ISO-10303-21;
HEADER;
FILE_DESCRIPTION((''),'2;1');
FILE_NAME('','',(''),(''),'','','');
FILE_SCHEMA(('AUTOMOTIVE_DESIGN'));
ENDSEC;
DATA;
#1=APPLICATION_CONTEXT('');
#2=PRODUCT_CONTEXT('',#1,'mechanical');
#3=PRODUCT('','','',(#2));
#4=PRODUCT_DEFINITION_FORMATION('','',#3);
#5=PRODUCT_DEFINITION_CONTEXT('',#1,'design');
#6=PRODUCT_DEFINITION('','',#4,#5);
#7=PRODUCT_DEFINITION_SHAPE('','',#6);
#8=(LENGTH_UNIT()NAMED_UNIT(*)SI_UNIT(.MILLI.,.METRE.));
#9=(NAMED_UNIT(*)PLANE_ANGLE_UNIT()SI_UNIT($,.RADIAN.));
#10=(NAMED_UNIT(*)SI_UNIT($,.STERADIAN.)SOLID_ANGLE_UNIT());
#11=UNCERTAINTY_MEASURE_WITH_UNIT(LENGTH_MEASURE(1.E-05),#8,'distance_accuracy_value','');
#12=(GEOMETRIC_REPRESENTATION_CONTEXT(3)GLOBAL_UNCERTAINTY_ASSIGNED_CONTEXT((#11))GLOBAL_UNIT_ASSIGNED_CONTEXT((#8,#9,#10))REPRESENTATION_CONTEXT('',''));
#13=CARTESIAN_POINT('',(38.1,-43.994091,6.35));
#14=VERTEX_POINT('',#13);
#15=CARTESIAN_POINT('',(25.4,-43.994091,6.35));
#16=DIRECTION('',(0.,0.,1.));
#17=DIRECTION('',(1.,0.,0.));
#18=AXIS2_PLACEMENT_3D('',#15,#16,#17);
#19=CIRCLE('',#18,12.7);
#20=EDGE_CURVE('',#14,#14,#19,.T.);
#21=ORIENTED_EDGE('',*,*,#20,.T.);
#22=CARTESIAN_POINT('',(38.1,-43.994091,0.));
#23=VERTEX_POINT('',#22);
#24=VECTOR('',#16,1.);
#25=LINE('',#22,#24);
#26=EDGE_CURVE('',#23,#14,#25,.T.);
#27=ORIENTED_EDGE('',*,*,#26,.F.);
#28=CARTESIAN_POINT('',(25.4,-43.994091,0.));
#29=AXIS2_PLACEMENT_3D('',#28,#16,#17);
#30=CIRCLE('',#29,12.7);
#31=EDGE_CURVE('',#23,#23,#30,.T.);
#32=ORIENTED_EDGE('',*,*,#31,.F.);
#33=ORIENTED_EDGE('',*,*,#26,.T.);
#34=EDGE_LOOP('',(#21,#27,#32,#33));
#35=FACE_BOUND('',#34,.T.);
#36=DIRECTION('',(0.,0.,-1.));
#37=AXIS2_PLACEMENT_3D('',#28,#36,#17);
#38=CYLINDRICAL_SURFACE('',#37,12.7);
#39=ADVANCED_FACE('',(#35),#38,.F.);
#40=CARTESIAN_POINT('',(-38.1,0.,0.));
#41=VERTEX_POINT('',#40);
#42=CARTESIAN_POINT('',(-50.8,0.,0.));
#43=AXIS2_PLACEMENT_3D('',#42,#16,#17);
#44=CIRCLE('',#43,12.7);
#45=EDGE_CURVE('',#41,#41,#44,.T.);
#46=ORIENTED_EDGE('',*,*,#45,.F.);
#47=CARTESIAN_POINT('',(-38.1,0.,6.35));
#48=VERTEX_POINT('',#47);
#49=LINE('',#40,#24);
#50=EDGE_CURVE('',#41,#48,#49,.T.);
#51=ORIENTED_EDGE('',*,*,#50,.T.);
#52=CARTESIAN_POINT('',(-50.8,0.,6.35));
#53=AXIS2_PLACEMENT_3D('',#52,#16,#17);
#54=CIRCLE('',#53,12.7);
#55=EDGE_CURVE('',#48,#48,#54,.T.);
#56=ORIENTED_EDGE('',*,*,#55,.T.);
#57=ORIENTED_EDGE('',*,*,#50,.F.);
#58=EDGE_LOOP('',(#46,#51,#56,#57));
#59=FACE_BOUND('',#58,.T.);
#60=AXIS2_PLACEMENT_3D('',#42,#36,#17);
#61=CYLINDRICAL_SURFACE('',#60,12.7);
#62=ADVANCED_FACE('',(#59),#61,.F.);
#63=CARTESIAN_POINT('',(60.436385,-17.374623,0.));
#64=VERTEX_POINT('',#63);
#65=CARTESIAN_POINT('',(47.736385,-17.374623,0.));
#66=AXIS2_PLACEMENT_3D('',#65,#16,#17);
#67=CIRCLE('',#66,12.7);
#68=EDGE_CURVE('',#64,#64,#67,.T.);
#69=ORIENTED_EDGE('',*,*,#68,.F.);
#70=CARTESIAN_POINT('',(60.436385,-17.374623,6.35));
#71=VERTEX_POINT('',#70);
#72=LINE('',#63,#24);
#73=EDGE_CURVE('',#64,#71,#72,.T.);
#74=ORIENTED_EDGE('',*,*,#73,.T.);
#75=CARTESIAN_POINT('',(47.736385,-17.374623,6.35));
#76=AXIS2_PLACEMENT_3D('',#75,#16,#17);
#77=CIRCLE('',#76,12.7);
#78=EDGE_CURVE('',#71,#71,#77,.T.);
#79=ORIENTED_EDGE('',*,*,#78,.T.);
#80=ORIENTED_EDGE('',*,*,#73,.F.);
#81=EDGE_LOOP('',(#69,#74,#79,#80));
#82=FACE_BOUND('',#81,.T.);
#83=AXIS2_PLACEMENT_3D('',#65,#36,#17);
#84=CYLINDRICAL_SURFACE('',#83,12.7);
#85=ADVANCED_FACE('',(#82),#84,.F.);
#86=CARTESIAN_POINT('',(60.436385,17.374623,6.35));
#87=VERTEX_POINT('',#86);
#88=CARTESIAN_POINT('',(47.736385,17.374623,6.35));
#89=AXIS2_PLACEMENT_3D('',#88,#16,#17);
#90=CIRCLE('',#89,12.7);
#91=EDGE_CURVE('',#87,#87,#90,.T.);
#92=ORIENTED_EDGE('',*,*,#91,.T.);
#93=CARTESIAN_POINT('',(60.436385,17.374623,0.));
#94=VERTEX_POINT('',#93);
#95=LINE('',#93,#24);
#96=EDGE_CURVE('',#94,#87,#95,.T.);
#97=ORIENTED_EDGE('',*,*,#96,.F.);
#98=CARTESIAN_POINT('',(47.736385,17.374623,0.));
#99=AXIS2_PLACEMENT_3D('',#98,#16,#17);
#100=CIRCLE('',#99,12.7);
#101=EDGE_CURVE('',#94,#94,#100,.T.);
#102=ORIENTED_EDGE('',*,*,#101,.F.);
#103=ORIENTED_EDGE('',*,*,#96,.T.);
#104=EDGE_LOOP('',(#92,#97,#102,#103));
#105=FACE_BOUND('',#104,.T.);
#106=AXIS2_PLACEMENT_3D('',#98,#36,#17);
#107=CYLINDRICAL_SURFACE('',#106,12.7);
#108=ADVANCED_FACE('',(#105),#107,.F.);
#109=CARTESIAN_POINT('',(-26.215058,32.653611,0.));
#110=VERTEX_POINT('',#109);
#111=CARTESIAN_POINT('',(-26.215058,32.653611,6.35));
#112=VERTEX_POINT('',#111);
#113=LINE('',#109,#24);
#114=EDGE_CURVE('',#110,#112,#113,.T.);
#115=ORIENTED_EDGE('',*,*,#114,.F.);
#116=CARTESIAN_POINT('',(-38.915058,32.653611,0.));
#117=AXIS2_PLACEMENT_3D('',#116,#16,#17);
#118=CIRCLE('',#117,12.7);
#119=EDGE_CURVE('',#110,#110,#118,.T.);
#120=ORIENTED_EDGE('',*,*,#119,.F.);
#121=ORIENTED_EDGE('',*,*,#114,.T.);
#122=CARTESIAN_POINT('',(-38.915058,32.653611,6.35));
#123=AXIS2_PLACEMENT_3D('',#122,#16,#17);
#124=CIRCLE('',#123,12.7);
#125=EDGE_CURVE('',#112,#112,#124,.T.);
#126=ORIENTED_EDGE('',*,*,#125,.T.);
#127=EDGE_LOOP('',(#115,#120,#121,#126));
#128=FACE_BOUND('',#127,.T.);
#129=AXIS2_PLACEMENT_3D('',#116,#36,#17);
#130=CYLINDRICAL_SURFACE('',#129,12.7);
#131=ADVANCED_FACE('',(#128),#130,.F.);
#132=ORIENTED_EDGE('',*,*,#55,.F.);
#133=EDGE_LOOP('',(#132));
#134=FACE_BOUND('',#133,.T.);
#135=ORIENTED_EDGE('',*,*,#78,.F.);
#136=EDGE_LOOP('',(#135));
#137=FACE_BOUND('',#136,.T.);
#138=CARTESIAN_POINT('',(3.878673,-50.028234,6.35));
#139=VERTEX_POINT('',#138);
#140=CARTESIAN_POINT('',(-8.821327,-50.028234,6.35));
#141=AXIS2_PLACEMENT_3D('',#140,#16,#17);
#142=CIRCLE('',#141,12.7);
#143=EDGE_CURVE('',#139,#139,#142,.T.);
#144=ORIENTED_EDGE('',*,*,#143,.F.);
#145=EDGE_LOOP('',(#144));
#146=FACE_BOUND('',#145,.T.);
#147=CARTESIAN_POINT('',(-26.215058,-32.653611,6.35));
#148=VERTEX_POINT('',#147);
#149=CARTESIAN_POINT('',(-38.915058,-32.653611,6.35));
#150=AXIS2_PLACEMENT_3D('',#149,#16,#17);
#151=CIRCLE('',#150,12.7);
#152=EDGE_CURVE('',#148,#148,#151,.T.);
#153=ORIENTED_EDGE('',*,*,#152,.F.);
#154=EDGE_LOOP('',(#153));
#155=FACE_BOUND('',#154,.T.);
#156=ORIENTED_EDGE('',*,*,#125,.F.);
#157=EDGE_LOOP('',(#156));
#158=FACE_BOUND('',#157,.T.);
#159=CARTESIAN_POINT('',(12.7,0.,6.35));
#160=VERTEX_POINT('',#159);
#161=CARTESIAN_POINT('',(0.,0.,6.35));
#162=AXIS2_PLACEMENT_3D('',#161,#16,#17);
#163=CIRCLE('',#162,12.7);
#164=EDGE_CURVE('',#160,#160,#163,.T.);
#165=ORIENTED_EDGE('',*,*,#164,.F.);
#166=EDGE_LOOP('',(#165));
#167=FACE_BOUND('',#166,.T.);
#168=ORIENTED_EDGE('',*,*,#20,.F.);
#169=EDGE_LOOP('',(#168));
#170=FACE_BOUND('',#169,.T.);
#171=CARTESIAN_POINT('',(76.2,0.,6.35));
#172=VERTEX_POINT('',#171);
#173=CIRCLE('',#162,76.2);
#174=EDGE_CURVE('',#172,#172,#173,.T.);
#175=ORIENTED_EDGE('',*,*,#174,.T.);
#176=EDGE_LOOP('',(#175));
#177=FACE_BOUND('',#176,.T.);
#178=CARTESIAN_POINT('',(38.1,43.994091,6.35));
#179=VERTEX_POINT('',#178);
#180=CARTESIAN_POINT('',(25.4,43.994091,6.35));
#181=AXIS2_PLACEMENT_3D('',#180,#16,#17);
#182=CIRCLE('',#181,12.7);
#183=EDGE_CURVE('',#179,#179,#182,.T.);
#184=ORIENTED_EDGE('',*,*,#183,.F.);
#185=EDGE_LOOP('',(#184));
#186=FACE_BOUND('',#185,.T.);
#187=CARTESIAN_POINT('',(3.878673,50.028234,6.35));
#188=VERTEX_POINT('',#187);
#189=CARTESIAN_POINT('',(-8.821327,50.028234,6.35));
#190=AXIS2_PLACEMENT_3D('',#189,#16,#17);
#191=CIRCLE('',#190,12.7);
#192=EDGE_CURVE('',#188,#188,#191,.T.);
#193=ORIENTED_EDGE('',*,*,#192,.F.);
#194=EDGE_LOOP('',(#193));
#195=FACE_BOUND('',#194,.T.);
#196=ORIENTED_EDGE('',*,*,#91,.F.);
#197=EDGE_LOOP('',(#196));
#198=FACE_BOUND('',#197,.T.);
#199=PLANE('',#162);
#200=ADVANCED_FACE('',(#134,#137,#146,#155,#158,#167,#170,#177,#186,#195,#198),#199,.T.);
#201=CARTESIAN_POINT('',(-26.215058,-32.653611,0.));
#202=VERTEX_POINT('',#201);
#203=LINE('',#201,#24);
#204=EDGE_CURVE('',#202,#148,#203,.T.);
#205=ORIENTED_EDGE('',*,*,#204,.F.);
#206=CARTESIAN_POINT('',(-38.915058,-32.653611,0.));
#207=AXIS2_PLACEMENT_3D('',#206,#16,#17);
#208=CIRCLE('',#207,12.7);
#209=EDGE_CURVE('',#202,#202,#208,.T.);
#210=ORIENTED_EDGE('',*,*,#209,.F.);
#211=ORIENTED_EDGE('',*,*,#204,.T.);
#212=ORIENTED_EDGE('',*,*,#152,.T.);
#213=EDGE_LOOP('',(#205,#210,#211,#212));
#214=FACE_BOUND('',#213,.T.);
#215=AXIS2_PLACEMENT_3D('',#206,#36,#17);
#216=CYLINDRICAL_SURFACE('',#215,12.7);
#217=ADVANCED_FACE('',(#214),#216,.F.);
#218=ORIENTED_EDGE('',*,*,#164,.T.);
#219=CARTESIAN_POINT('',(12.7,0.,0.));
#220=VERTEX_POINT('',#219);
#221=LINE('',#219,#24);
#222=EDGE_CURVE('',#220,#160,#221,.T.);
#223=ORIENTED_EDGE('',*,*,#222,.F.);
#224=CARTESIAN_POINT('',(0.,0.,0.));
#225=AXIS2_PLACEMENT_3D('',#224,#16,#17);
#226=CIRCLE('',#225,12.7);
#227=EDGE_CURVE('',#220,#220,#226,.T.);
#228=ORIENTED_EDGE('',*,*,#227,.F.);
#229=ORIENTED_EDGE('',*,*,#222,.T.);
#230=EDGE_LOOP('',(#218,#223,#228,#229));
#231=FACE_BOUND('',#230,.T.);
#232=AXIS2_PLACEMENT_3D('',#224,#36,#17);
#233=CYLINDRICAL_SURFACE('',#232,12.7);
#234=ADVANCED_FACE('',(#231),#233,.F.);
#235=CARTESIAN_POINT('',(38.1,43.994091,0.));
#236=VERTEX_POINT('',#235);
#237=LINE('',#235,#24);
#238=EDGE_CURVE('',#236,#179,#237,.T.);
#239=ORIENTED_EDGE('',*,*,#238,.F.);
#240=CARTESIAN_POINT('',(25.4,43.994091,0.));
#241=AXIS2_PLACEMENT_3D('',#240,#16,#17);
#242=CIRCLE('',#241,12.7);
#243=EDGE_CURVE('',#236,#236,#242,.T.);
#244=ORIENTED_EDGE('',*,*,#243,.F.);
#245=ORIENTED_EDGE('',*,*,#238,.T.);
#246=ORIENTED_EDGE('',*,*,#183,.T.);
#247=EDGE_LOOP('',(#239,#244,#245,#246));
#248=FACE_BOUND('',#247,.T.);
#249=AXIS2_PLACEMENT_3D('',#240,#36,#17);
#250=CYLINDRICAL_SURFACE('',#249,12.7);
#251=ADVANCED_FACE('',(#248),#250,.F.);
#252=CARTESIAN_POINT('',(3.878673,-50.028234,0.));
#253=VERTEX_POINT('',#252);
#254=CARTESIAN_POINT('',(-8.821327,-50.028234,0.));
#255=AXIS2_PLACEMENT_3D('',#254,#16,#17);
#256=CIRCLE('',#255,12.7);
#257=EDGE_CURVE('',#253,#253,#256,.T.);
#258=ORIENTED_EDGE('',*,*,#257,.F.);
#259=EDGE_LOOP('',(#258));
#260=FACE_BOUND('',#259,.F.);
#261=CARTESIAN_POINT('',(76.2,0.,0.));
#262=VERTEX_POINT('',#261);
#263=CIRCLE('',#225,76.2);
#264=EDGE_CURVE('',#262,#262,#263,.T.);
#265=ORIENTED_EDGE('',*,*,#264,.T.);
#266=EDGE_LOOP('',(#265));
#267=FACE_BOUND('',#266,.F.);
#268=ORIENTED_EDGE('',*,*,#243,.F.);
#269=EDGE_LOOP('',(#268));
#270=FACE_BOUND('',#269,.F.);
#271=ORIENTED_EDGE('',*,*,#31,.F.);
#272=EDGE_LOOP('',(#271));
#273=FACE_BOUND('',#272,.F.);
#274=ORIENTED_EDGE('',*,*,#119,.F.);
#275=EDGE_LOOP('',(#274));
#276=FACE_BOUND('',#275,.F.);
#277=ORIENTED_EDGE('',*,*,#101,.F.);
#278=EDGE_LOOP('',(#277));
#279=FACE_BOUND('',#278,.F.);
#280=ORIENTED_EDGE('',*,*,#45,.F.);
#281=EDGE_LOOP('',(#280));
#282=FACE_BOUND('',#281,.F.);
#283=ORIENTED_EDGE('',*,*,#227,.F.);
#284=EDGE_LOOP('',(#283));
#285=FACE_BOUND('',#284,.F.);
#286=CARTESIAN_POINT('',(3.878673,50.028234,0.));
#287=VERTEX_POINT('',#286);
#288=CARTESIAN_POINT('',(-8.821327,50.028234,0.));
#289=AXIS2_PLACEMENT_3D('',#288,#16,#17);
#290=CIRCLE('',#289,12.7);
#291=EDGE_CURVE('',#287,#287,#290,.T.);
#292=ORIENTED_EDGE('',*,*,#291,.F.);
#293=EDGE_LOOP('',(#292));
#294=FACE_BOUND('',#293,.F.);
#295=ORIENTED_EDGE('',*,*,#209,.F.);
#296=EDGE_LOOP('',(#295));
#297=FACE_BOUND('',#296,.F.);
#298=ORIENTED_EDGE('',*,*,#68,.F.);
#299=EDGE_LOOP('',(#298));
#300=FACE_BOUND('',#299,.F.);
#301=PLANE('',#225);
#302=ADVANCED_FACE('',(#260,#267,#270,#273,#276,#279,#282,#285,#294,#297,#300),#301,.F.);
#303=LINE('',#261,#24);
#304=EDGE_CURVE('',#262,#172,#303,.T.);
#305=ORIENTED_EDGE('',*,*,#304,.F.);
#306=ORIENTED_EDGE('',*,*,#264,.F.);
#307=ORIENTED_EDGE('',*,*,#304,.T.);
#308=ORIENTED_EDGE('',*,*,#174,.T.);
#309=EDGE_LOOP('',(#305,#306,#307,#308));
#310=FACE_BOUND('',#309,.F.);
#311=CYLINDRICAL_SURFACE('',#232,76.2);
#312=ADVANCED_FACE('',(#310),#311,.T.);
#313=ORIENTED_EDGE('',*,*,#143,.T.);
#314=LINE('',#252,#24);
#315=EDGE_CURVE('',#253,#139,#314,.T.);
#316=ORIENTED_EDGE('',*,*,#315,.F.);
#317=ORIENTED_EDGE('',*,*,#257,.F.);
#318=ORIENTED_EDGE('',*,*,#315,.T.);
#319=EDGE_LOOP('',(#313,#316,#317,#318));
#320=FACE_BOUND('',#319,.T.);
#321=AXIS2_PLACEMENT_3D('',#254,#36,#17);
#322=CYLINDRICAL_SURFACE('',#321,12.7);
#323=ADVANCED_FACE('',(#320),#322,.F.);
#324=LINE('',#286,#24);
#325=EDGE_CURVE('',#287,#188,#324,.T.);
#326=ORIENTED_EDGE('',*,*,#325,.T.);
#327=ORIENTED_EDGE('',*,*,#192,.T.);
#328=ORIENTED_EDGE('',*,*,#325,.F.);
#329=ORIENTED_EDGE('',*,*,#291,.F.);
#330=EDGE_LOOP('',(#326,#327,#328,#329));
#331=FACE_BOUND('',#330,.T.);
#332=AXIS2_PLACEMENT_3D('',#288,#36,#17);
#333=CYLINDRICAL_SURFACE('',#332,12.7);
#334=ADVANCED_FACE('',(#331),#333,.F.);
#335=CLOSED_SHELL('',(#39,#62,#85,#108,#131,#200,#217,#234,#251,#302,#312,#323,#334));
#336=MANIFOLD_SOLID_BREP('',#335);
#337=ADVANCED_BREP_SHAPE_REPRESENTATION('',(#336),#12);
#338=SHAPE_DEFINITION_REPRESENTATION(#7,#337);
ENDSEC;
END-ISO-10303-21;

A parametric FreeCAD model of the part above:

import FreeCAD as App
import Part
import Sketcher
Q = App.Units.Quantity

doc = App.newDocument("Part")
body = doc.addObject("PartDesign::Body", "Body")

# Sketch on XY plane
sketch1 = body.newObject("Sketcher::SketchObject", "Sketch")
sketch1.AttachmentSupport = (doc.getObject("XY_Plane"), [""])
sketch1.MapMode = "FlatFace"
sketch1.addGeometry([
    Part.Circle(App.Vector(0, 0, 0), App.Vector(0, 0, 1), 76),  # 0
    Part.Circle(App.Vector(-39, -33, 0), App.Vector(0, 0, 1), 13),  # 1
    Part.Circle(App.Vector(-9, -50, 0), App.Vector(0, 0, 1), 13),  # 2
    Part.Circle(App.Vector(25, -44, 0), App.Vector(0, 0, 1), 13),  # 3
    Part.Circle(App.Vector(48, -17, 0), App.Vector(0, 0, 1), 13),  # 4
    Part.Circle(App.Vector(-51, 0, 0), App.Vector(0, 0, 1), 13),  # 5
    Part.Circle(App.Vector(-39, 33, 0), App.Vector(0, 0, 1), 13),  # 6
    Part.Circle(App.Vector(-9, 50, 0), App.Vector(0, 0, 1), 13),  # 7
    Part.Circle(App.Vector(0, 0, 0), App.Vector(0, 0, 1), 13),  # 8
    Part.Circle(App.Vector(48, 17, 0), App.Vector(0, 0, 1), 13),  # 9
    Part.Circle(App.Vector(25, 44, 0), App.Vector(0, 0, 1), 13),  # 10
], False)
sketch1.addConstraint([
    Sketcher.Constraint("Coincident", 0, 3, -1, 1),
    Sketcher.Constraint("Coincident", 8, 3, -1, 1),
    Sketcher.Constraint("Equal", 1, 2),
    Sketcher.Constraint("Equal", 2, 3),
    Sketcher.Constraint("Equal", 3, 4),
    Sketcher.Constraint("Equal", 4, 5),
    Sketcher.Constraint("Equal", 5, 6),
    Sketcher.Constraint("Equal", 6, 7),
    Sketcher.Constraint("Equal", 7, 8),
    Sketcher.Constraint("Equal", 8, 9),
    Sketcher.Constraint("Equal", 9, 10),
    Sketcher.Constraint("Symmetric", 1, 3, 6, 3, -1),
    Sketcher.Constraint("Symmetric", 2, 3, 7, 3, -1),
    Sketcher.Constraint("Symmetric", 4, 3, 9, 3, -1),
    Sketcher.Constraint("Symmetric", 3, 3, 10, 3, -1),
    Sketcher.Constraint("PointOnObject", 5, 3, -1),
    Sketcher.Constraint("Diameter", 0, Q("6 in")),
    Sketcher.Constraint("Diameter", 1, Q("1 in")),
    Sketcher.Constraint("DistanceX", -1, 1, 3, 3, Q("1 in")),
    Sketcher.Constraint("DistanceX", 5, 3, -1, 1, Q("2 in")),
    Sketcher.Constraint("DistanceX", 1, 3, -1, 1, 38.915058),
    Sketcher.Constraint("DistanceY", 1, 3, -1, 1, 32.653611),
    Sketcher.Constraint("DistanceY", 3, 3, -1, 1, 43.994091),
    Sketcher.Constraint("DistanceX", 1, 3, 2, 3, 30.093731),
    Sketcher.Constraint("DistanceX", 2, 3, 4, 3, 56.557712),
    Sketcher.Constraint("DistanceY", 2, 3, 4, 3, 32.653611),
    Sketcher.Constraint("DistanceY", 2, 3, -1, 1, 50.028234),
])
pad1 = body.newObject("PartDesign::Pad", "Pad")
pad1.Profile = sketch1
pad1.Length = Q("0.25 in")

doc.recompute()
